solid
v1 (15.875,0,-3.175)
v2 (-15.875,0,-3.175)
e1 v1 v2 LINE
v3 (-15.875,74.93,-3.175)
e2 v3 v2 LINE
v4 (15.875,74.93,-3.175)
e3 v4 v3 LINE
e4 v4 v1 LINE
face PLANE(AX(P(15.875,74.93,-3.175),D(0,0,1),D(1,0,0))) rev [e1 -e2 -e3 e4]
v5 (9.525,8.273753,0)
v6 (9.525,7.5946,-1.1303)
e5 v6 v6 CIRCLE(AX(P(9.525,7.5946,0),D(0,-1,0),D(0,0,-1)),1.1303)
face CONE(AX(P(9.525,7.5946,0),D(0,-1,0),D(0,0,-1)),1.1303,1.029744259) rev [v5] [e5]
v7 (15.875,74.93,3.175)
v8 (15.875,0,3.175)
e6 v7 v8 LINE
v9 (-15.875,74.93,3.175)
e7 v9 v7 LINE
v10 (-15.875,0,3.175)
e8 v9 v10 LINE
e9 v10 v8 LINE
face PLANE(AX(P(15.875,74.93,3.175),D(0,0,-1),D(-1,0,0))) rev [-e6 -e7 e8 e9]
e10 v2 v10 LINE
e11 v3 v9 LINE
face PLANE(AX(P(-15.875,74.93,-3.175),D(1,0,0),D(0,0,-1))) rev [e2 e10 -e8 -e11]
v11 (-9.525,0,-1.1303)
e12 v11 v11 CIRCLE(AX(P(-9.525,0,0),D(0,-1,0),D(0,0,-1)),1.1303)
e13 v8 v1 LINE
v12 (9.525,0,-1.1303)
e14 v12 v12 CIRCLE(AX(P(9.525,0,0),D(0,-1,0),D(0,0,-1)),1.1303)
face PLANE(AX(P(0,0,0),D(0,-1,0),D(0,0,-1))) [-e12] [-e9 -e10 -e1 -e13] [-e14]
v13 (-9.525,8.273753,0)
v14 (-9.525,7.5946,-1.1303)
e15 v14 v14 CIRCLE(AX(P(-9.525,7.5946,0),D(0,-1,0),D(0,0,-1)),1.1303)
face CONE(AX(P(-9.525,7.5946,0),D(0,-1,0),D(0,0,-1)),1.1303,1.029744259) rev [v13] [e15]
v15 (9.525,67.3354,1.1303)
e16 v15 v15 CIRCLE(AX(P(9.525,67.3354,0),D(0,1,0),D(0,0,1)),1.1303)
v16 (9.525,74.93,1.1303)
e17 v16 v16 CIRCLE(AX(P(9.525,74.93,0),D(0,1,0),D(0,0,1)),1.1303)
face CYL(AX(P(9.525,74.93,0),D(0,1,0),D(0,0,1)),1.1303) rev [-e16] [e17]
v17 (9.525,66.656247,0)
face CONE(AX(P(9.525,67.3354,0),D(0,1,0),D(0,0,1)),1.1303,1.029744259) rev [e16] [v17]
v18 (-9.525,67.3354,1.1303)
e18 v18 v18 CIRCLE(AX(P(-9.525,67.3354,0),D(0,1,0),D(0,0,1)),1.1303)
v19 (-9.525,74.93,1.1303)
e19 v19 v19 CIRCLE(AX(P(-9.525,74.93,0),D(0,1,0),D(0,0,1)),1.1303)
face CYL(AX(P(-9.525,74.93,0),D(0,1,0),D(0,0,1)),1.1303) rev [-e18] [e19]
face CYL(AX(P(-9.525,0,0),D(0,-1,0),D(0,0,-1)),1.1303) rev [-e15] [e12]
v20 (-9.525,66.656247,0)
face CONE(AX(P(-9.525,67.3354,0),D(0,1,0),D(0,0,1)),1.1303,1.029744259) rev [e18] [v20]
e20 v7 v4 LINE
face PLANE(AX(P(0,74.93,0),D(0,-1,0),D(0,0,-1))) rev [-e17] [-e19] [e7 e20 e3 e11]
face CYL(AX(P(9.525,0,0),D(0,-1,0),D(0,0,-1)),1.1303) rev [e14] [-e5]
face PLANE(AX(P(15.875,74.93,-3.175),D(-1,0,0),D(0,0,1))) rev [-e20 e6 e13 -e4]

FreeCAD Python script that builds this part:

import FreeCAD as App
import Part
import Sketcher
from FreeCAD import Vector
Q = App.Units.Quantity


def add_polygon(sketch, points):
    """Adds a closed chain of lines whose ends are joined by coincident constraints."""
    first, n = sketch.GeometryCount, len(points)
    for a, b in zip(points, points[1:] + points[:1]):
        sketch.addGeometry(Part.LineSegment(App.Vector(*a, 0), App.Vector(*b, 0)), False)
    for i in range(n):
        sketch.addConstraint(Sketcher.Constraint("Coincident", first + i, 2, first + (i + 1) % n, 1))

doc = App.newDocument("Part")
body = doc.addObject("PartDesign::Body", "Body")

# Sketch on XZ plane
sketch1 = doc.addObject("Sketcher::SketchObject", "Sketch")
body.addObject(sketch1)
sketch1.AttachmentSupport = (doc.XZ_Plane, [""])
sketch1.MapMode = "FlatFace"
add_polygon(sketch1, [(-16, -3), (-16, 3), (16, 3), (16, -3)])  # lines 0-3
sketch1.addConstraint(Sketcher.Constraint("Vertical", 0))
sketch1.addConstraint(Sketcher.Constraint("Horizontal", 1))
sketch1.addConstraint(Sketcher.Constraint("Vertical", 2))
sketch1.addConstraint(Sketcher.Constraint("Horizontal", 3))
sketch1.addConstraint(Sketcher.Constraint("Symmetric", 0, 2, 2, 2, -1, 1))
sketch1.addConstraint(Sketcher.Constraint("DistanceX", 1, 1, 1, 2, Q("1.25 in")))
sketch1.addConstraint(Sketcher.Constraint("DistanceY", 0, 1, 0, 2, Q("0.25 in")))
pad1 = doc.addObject("PartDesign::Pad", "Pad")
body.addObject(pad1)
pad1.Profile = sketch1
pad1.Length = Q("2.95 in")
pad1.Reversed = True

# Sketch on XZ plane
sketch2 = doc.addObject("Sketcher::SketchObject", "Sketch001")
body.addObject(sketch2)
sketch2.AttachmentSupport = (doc.XZ_Plane, [""])
sketch2.MapMode = "FlatFace"
sketch2.addGeometry(Part.Circle(Vector(-9.5, 0, 0), Vector(0, 0, 1), 1.1), False)
sketch2.addGeometry(Part.Circle(Vector(9.5, 0, 0), Vector(0, 0, 1), 1.1), False)
sketch2.addConstraint(Sketcher.Constraint("Equal", 0, 1))
sketch2.addConstraint(Sketcher.Constraint("Symmetric", 0, 3, 1, 3, -1, 1))
sketch2.addConstraint(Sketcher.Constraint("PointOnObject", 0, 3, -1))
sketch2.addConstraint(Sketcher.Constraint("Diameter", 0, Q("0.089 in")))
sketch2.addConstraint(Sketcher.Constraint("DistanceX", 0, 3, 1, 3, Q("0.75 in")))
doc.recompute()
hole = doc.addObject("PartDesign::Hole", "Hole")
body.addObject(hole)
hole.Profile = sketch2
hole.ThreadType = "None"
hole.Diameter = Q("0.089 in")
hole.DepthType = "Dimension"
hole.Depth = Q("0.299 in")
hole.DrillPoint = "Angled"
hole.DrillPointAngle = 118

# Sketch on XZ plane
sketch3 = doc.addObject("Sketcher::SketchObject", "Sketch002")
body.addObject(sketch3)
sketch3.AttachmentSupport = (doc.XZ_Plane, [""])
sketch3.MapMode = "FlatFace"
sketch3.AttachmentOffset = App.Placement(Vector(0, 0, -2.95 * 25.4), App.Rotation())
sketch3.addGeometry(Part.Circle(Vector(-9.5, 0, 0), Vector(0, 0, 1), 1.1), False)
sketch3.addGeometry(Part.Circle(Vector(9.5, 0, 0), Vector(0, 0, 1), 1.1), False)
sketch3.addConstraint(Sketcher.Constraint("Equal", 0, 1))
sketch3.addConstraint(Sketcher.Constraint("Symmetric", 0, 3, 1, 3, -1, 1))
sketch3.addConstraint(Sketcher.Constraint("PointOnObject", 0, 3, -1))
sketch3.addConstraint(Sketcher.Constraint("Diameter", 0, Q("0.089 in")))
sketch3.addConstraint(Sketcher.Constraint("DistanceX", 0, 3, 1, 3, Q("0.75 in")))
doc.recompute()
hole2 = doc.addObject("PartDesign::Hole", "Hole001")
body.addObject(hole2)
hole2.Profile = sketch3
hole2.ThreadType = "None"
hole2.Diameter = Q("0.089 in")
hole2.DepthType = "Dimension"
hole2.Depth = Q("0.299 in")
hole2.DrillPoint = "Angled"
hole2.DrillPointAngle = 118
hole2.Reversed = True

doc.recompute()
